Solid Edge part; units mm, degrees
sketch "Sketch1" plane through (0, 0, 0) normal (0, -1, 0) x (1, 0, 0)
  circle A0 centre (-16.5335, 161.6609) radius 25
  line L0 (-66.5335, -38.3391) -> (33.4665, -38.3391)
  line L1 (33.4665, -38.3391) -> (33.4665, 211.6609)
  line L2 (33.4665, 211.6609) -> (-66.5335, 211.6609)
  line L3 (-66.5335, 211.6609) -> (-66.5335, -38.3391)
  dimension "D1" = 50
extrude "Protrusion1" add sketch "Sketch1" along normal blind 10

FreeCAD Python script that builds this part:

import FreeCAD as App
import Part
import Sketcher

V = App.Vector

doc = App.newDocument("Part")
body = doc.addObject("PartDesign::Body", "Body")

sketch1 = body.newObject("Sketcher::SketchObject", "Sketch")
sketch1.AttachmentSupport = (doc.getObject("XZ_Plane"), [""])
sketch1.MapMode = "FlatFace"
sketch1.addGeometry(Part.LineSegment(V(-66.5335, 211.6609, 0), V(-66.5335, -38.3391, 0)), False)
sketch1.addGeometry(Part.LineSegment(V(-66.5335, -38.3391, 0), V(33.4665, -38.3391, 0)), False)
sketch1.addGeometry(Part.LineSegment(V(33.4665, -38.3391, 0), V(33.4665, 211.6609, 0)), False)
sketch1.addGeometry(Part.LineSegment(V(33.4665, 211.6609, 0), V(-66.5335, 211.6609, 0)), False)
sketch1.addGeometry(Part.Circle(V(-16.5335, 161.6609, 0), V(0, 0, 1), 25), False)
sketch1.addConstraint(Sketcher.Constraint("Coincident", 0, 2, 1, 1))
sketch1.addConstraint(Sketcher.Constraint("Coincident", 1, 2, 2, 1))
sketch1.addConstraint(Sketcher.Constraint("Coincident", 2, 2, 3, 1))
sketch1.addConstraint(Sketcher.Constraint("Coincident", 3, 2, 0, 1))
sketch1.addConstraint(Sketcher.Constraint("Vertical", 0))
sketch1.addConstraint(Sketcher.Constraint("Horizontal", 1))
sketch1.addConstraint(Sketcher.Constraint("Vertical", 2))
sketch1.addConstraint(Sketcher.Constraint("Horizontal", 3))
sketch1.addConstraint(Sketcher.Constraint("Diameter", 4, 50.0))
sketch1.addConstraint(Sketcher.Constraint("DistanceX", 1, 1, 1, 2, 100.0))
sketch1.addConstraint(Sketcher.Constraint("DistanceY", 0, 2, 0, 1, 250.0))
sketch1.addConstraint(Sketcher.Constraint("DistanceX", 0, 2, 4, 3, 50.0))
sketch1.addConstraint(Sketcher.Constraint("DistanceY", 0, 2, 4, 3, 200.0))
sketch1.addConstraint(Sketcher.Constraint("DistanceY", -1, 1, 4, 3, 161.661))
sketch1.addConstraint(Sketcher.Constraint("DistanceX", 4, 3, -1, 1, 16.5335))
pad1 = body.newObject("PartDesign::Pad", "Pad")
pad1.Profile = sketch1
pad1.Length = 10

doc.recompute()
